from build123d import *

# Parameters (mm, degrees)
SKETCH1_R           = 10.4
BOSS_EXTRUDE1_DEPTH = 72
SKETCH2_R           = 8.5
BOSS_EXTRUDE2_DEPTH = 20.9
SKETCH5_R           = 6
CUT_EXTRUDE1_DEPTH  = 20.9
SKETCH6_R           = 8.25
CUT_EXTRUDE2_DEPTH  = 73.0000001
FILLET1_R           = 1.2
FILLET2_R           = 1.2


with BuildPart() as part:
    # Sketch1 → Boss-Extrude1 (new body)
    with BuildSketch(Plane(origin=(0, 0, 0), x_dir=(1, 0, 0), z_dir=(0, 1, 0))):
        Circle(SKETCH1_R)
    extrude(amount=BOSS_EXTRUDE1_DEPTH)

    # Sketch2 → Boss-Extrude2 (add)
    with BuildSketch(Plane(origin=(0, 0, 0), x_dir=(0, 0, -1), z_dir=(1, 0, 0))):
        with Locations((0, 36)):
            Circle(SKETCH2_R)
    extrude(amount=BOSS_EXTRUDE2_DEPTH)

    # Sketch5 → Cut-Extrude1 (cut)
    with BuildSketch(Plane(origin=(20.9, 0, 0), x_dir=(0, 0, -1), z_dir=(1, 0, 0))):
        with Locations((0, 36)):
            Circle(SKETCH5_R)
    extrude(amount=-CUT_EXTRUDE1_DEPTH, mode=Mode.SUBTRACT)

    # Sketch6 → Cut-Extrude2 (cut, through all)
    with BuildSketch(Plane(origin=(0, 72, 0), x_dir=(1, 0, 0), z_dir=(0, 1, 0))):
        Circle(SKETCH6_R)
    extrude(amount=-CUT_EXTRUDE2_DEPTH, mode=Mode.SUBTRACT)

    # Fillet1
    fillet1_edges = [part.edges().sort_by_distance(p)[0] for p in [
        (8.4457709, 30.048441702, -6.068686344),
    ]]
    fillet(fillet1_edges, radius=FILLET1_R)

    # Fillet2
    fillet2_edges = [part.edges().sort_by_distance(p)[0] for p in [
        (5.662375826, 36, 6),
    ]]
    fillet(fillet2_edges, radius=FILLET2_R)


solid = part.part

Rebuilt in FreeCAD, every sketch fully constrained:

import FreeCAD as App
import Part
import Sketcher

V = App.Vector
Q = App.Units.Quantity


def edges_at(feature, points):
    """Names of the edges that pass closest to the given points."""
    edges = feature.Shape.Edges
    near = lambda p: min(range(len(edges)), key=lambda i: edges[i].distToShape(Part.Vertex(*p))[0])
    return sorted({f"Edge{near(p) + 1}" for p in points})

doc = App.newDocument("Part")
params = doc.addObject("Spreadsheet::Sheet", "Params")
for row, (alias, value) in enumerate([
    ("sketch1_diameter", "20.8 mm"),
    ("pad1_length", "72 mm"),
    ("sketch2_diameter", "17 mm"),
    ("pad2_length", "20.9 mm"),
    ("sketch3_diameter", "12 mm"),
    ("pocket1_length", "20.9 mm"),
    ("sketch4_diameter", "16.5 mm"),
    ("fillet_radius", "1.2 mm"),
    ("fillet2_radius", "1.2 mm"),
], start=1):
    params.set(f"A{row}", alias)
    params.set(f"B{row}", "=" + value)
    params.setAlias(f"B{row}", alias)

body = doc.addObject("PartDesign::Body", "Body")

# Sketch on XZ plane
sketch1 = body.newObject("Sketcher::SketchObject", "Sketch")
sketch1.AttachmentSupport = (doc.getObject("XZ_Plane"), [""])
sketch1.MapMode = "FlatFace"
sketch1.addGeometry(Part.Circle(V(0, 0, 0), V(0, 0, 1), 10), False)
sketch1.addConstraint([
    Sketcher.Constraint("Coincident", 0, 3, -1, 1),
    Sketcher.Constraint("Diameter", 0, Q("20.8 mm")),
])
sketch1.setExpression("Constraints[1]", "Params.sketch1_diameter")
pad1 = body.newObject("PartDesign::Pad", "Pad")
pad1.Profile = sketch1
pad1.setExpression("Length", "Params.pad1_length")
pad1.Reversed = True

# Sketch on YZ plane
sketch2 = body.newObject("Sketcher::SketchObject", "Sketch001")
sketch2.AttachmentSupport = (doc.getObject("YZ_Plane"), [""])
sketch2.MapMode = "FlatFace"
sketch2.addGeometry(Part.Circle(V(36, 0, 0), V(0, 0, 1), 8), False)
sketch2.addConstraint([
    Sketcher.Constraint("PointOnObject", 0, 3, -1),
    Sketcher.Constraint("Diameter", 0, Q("17 mm")),
    Sketcher.Constraint("DistanceX", -1, 1, 0, 3, Q("36 mm")),
])
sketch2.setExpression("Constraints[1]", "Params.sketch2_diameter")
pad2 = body.newObject("PartDesign::Pad", "Pad001")
pad2.Profile = sketch2
pad2.setExpression("Length", "Params.pad2_length")

# Sketch on YZ plane
sketch3 = body.newObject("Sketcher::SketchObject", "Sketch002")
sketch3.AttachmentSupport = (doc.getObject("YZ_Plane"), [""])
sketch3.MapMode = "FlatFace"
sketch3.AttachmentOffset = App.Placement(V(0, 0, 20.9), App.Rotation())
sketch3.addGeometry(Part.Circle(V(36, 0, 0), V(0, 0, 1), 6), False)
sketch3.addConstraint([
    Sketcher.Constraint("PointOnObject", 0, 3, -1),
    Sketcher.Constraint("Diameter", 0, Q("12 mm")),
    Sketcher.Constraint("DistanceX", -1, 1, 0, 3, Q("36 mm")),
])
sketch3.setExpression("Constraints[1]", "Params.sketch3_diameter")
pocket1 = body.newObject("PartDesign::Pocket", "Pocket")
pocket1.Profile = sketch3
pocket1.setExpression("Length", "Params.pocket1_length")

# Sketch on XZ plane
sketch4 = body.newObject("Sketcher::SketchObject", "Sketch003")
sketch4.AttachmentSupport = (doc.getObject("XZ_Plane"), [""])
sketch4.MapMode = "FlatFace"
sketch4.AttachmentOffset = App.Placement(V(0, 0, -72), App.Rotation())
sketch4.addGeometry(Part.Circle(V(0, 0, 0), V(0, 0, 1), 8), False)
sketch4.addConstraint([
    Sketcher.Constraint("Coincident", 0, 3, -1, 1),
    Sketcher.Constraint("Diameter", 0, Q("16.5 mm")),
])
sketch4.setExpression("Constraints[1]", "Params.sketch4_diameter")
pocket2 = body.newObject("PartDesign::Pocket", "Pocket001")
pocket2.Profile = sketch4
pocket2.Type = "ThroughAll"
pocket2.Reversed = True
doc.recompute()

fillet = body.newObject("PartDesign::Fillet", "Fillet")
fillet.Base = (pocket2, edges_at(pocket2, [(8.446, 30.048, -6.069)]))
fillet.setExpression("Radius", "Params.fillet_radius")
doc.recompute()

fillet2 = body.newObject("PartDesign::Fillet", "Fillet001")
fillet2.Base = (fillet, edges_at(fillet, [(5.662, 36, 6)]))
fillet2.setExpression("Radius", "Params.fillet2_radius")

doc.recompute()
